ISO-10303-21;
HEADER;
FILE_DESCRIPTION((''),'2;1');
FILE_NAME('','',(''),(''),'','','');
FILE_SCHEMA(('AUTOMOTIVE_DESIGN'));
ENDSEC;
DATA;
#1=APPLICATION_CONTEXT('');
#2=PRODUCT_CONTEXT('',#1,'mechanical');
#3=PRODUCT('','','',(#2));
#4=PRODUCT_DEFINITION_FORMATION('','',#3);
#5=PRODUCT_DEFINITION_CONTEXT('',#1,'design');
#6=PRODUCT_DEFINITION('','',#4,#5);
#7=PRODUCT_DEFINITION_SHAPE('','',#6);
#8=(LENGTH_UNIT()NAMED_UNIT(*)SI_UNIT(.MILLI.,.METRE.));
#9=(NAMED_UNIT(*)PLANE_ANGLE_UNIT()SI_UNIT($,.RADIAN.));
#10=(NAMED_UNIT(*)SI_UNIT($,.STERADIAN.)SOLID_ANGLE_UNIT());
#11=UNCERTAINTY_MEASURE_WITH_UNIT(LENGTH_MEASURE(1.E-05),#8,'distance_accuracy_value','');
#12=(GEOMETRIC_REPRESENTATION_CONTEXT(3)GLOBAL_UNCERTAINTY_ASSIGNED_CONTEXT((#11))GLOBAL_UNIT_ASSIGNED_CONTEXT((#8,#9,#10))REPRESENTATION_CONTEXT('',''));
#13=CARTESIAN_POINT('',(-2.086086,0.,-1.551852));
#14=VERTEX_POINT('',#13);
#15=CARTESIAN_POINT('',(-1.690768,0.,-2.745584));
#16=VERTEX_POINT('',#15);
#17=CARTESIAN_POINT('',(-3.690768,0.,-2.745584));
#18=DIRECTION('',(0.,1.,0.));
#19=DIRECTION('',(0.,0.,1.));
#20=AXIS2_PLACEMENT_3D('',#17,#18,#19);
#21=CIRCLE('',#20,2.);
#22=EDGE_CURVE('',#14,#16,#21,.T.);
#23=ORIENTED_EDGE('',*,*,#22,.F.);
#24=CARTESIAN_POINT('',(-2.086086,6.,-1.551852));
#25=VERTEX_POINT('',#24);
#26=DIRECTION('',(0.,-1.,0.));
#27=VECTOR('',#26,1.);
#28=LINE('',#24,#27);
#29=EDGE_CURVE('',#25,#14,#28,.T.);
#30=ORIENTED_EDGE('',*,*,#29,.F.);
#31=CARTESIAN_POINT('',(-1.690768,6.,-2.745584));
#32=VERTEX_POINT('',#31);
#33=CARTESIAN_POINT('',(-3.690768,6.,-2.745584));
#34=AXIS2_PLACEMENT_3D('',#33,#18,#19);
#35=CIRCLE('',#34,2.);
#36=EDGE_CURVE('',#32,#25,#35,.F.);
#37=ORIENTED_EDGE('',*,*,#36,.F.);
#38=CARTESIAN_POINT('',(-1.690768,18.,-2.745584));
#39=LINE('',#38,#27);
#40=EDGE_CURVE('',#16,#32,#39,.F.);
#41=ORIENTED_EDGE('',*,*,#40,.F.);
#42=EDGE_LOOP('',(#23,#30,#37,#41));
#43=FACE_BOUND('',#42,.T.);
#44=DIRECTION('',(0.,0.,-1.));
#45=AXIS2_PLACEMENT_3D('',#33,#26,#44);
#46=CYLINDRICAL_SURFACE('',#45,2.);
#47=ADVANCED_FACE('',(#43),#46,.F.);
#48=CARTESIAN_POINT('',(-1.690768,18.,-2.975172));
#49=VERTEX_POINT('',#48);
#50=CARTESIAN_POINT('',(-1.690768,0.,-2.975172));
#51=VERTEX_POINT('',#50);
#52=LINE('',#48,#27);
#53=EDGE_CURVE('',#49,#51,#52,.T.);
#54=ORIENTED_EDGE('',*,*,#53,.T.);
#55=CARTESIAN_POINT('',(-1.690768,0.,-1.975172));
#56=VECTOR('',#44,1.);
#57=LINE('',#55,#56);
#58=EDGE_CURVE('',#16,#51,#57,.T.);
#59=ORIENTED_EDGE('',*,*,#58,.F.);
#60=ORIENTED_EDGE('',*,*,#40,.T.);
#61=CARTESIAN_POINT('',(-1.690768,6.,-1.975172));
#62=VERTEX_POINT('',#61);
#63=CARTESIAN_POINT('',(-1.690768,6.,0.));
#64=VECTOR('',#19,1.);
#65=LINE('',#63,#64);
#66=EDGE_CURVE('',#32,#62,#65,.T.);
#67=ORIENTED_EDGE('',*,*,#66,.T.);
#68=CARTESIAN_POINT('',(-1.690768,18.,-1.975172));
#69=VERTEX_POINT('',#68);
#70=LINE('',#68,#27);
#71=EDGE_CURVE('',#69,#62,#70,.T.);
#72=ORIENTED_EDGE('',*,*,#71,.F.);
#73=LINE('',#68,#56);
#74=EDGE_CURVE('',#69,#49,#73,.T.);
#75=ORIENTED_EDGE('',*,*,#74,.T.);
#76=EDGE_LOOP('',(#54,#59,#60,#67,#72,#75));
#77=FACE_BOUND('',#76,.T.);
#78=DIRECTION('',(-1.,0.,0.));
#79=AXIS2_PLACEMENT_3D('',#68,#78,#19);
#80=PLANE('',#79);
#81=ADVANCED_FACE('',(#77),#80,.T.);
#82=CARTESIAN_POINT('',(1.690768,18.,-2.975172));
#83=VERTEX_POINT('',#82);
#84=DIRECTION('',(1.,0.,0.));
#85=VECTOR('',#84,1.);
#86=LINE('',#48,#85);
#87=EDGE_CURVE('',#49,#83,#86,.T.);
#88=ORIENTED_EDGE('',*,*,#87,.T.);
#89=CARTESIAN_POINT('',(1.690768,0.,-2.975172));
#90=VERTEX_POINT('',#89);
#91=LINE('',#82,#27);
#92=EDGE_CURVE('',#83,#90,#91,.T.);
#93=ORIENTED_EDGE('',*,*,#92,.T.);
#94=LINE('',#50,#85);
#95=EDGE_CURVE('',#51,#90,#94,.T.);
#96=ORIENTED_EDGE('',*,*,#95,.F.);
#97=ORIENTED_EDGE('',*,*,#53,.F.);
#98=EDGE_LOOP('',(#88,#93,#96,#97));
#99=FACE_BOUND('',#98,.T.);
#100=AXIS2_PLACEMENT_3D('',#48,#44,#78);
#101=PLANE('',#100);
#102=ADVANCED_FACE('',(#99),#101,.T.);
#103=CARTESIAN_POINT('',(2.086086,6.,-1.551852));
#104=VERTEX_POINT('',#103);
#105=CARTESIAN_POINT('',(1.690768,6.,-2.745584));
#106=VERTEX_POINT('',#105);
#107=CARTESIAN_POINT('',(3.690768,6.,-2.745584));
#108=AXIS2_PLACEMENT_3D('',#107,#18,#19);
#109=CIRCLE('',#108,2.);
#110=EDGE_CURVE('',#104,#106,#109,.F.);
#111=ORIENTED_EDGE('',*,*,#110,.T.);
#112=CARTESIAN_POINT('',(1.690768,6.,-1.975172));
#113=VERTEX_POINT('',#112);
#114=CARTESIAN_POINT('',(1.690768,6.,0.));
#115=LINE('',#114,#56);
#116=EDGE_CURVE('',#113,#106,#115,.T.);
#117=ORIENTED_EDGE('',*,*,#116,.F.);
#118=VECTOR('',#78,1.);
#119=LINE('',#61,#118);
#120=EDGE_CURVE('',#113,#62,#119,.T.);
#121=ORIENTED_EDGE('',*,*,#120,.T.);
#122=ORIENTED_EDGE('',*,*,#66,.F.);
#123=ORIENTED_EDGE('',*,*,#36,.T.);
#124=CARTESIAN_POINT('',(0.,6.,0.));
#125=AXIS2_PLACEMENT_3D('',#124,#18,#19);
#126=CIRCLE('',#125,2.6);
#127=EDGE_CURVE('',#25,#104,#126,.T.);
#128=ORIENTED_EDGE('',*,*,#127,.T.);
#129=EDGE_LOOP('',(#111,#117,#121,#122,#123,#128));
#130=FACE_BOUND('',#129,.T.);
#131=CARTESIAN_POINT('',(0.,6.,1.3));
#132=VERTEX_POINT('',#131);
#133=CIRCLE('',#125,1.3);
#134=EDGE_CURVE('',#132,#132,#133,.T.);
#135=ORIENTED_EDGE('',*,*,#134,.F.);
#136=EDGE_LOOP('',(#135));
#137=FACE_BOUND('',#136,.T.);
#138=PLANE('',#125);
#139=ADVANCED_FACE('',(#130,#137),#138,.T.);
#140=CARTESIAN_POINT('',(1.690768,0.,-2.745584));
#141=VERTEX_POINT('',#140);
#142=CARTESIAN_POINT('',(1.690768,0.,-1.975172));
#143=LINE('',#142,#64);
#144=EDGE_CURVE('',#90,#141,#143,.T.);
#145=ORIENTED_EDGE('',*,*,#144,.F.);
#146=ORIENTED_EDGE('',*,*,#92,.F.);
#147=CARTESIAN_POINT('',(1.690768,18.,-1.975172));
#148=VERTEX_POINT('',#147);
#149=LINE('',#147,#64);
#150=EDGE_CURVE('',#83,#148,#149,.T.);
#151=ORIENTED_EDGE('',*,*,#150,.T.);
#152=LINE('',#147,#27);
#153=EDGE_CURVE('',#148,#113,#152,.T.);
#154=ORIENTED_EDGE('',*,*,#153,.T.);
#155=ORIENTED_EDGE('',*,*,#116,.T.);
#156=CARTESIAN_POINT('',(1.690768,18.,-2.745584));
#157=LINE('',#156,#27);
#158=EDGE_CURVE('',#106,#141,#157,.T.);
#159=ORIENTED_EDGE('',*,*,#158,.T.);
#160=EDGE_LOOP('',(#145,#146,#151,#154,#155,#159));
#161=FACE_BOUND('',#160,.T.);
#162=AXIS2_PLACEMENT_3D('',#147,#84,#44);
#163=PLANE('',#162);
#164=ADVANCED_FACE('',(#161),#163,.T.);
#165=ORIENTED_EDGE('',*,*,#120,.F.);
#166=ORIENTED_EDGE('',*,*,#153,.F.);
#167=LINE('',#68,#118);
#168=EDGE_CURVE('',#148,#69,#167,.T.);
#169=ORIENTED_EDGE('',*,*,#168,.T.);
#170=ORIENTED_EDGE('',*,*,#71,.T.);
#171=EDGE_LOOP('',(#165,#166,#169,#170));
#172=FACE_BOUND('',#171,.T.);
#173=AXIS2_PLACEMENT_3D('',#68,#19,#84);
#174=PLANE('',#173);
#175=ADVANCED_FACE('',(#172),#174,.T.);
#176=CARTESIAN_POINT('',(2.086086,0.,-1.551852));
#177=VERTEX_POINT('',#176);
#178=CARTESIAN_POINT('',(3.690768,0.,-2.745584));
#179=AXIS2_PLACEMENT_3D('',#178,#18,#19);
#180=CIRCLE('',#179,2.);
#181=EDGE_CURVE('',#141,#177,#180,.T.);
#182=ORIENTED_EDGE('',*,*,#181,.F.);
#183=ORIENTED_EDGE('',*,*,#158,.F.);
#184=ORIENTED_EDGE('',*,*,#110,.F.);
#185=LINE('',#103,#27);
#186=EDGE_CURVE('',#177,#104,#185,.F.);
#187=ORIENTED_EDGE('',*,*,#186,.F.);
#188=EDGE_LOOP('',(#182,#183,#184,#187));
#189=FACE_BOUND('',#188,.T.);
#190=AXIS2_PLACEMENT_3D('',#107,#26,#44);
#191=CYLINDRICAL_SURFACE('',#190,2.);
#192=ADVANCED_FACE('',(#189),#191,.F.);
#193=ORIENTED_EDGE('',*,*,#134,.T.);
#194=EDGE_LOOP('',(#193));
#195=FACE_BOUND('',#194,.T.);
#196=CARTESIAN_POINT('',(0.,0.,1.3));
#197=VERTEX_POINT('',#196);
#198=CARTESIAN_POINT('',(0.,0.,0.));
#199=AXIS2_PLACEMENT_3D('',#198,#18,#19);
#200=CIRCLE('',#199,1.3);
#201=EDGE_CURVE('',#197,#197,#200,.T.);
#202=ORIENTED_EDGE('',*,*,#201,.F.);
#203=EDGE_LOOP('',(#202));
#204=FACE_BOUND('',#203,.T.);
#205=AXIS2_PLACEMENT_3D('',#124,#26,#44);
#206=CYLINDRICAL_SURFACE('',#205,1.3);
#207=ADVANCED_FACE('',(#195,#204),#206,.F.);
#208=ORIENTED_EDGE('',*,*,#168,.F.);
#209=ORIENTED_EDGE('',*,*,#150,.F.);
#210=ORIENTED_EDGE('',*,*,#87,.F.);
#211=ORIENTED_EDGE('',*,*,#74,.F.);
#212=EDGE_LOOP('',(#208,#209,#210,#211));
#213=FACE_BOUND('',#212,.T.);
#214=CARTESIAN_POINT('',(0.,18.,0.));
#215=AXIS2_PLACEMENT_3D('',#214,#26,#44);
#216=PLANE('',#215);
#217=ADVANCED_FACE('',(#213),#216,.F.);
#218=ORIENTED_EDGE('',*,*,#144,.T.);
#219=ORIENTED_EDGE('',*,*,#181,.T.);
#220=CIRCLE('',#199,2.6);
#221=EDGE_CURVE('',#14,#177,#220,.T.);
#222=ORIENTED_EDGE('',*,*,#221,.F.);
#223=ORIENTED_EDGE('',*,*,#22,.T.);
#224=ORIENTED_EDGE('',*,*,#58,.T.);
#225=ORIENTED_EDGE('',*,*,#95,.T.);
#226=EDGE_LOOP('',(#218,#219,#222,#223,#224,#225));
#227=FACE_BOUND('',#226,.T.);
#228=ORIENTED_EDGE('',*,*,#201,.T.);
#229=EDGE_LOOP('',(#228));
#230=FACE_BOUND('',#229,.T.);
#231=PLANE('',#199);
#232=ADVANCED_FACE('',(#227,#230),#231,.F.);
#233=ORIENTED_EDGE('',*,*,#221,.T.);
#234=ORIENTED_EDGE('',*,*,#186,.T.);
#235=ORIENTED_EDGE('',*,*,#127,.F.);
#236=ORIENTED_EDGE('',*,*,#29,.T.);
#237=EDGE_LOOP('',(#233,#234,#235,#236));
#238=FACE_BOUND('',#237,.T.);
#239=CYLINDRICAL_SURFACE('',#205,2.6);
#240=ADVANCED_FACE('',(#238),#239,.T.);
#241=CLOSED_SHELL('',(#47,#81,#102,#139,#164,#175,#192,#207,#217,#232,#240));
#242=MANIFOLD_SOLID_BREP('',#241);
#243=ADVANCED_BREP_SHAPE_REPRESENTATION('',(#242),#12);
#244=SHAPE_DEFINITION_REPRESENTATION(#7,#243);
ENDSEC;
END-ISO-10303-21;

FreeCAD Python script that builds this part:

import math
import FreeCAD as App
import Part
import Sketcher
from FreeCAD import Vector


def edges_at(feature, points):
    """Names of the edges that pass closest to the given points."""
    edges = feature.Shape.Edges
    near = lambda p: min(range(len(edges)), key=lambda i: edges[i].distToShape(Part.Vertex(*p))[0])
    return sorted({f"Edge{near(p) + 1}" for p in points})


def add_polygon(sketch, points):
    """Adds a closed chain of lines whose ends are joined by coincident constraints."""
    first, n = sketch.GeometryCount, len(points)
    for a, b in zip(points, points[1:] + points[:1]):
        sketch.addGeometry(Part.LineSegment(App.Vector(*a, 0), App.Vector(*b, 0)), False)
    for i in range(n):
        sketch.addConstraint(Sketcher.Constraint("Coincident", first + i, 2, first + (i + 1) % n, 1))

doc = App.newDocument("Part")
params = doc.addObject("Spreadsheet::Sheet", "Params")
for row, (alias, value) in enumerate([
    ("sketch1_diameter", "2.6 mm"),
    ("sketch1_radius", "2.6 mm"),
    ("pad1_length", "6 mm"),
    ("sketch2_height", "1 mm"),
    ("pad2_length", "18 mm"),
    ("fillet_radius", "2 mm"),
], start=1):
    params.set(f"A{row}", alias)
    params.set(f"B{row}", "=" + value)
    params.setAlias(f"B{row}", alias)

body = doc.addObject("PartDesign::Body", "Body")

# Sketch on XZ plane
sketch1 = body.newObject("Sketcher::SketchObject", "Sketch")
sketch1.AttachmentSupport = (doc.getObject("XZ_Plane"), [""])
sketch1.MapMode = "FlatFace"
sketch1.addGeometry([
    Part.LineSegment(Vector(1.7, -2, 0), Vector(-1.7, -2, 0)),
    Part.ArcOfCircle(Part.Circle(Vector(0, 0, 0), Vector(0, 0, 1), 2.6), math.radians(-49), math.radians(229)),
    Part.Circle(Vector(0, 0, 0), Vector(0, 0, 1), 1.3),
], False)
sketch1.addConstraint([
    Sketcher.Constraint("Coincident", 0, 1, 1, 1),
    Sketcher.Constraint("Coincident", 1, 2, 0, 2),
    Sketcher.Constraint("Horizontal", 0),
    Sketcher.Constraint("Coincident", 1, 3, -1, 1),
    Sketcher.Constraint("Coincident", 2, 3, -1, 1),
    Sketcher.Constraint("Diameter", 2, 2.6),
    Sketcher.Constraint("Radius", 1, 2.6),
    Sketcher.Constraint("DistanceX", 0, 2, 0, 1, 3.381537),
])
sketch1.setExpression("Constraints[5]", "Params.sketch1_diameter")
sketch1.setExpression("Constraints[6]", "Params.sketch1_radius")
pad1 = body.newObject("PartDesign::Pad", "Pad")
pad1.Profile = sketch1
pad1.setExpression("Length", "Params.pad1_length")
pad1.Reversed = True

# Sketch on XZ plane
sketch2 = body.newObject("Sketcher::SketchObject", "Sketch001")
sketch2.AttachmentSupport = (doc.getObject("XZ_Plane"), [""])
sketch2.MapMode = "FlatFace"
add_polygon(sketch2, [(-1.7, -2), (-1.7, -3), (1.7, -3), (1.7, -2)])  # lines 0-3
sketch2.addConstraint([
    Sketcher.Constraint("Vertical", 0),
    Sketcher.Constraint("Horizontal", 1),
    Sketcher.Constraint("Vertical", 2),
    Sketcher.Constraint("Horizontal", 3),
    Sketcher.Constraint("DistanceY", 0, 2, 0, 1, 1.0),
    Sketcher.Constraint("DistanceX", 1, 1, 1, 2, 3.381537),
    Sketcher.Constraint("DistanceX", 0, 2, -1, 1, 1.690768),
    Sketcher.Constraint("DistanceY", 0, 2, -1, 1, 2.975172),
])
sketch2.setExpression("Constraints[8]", "Params.sketch2_height")
pad2 = body.newObject("PartDesign::Pad", "Pad001")
pad2.Profile = sketch2
pad2.setExpression("Length", "Params.pad2_length")
pad2.Reversed = True
doc.recompute()

fillet = body.newObject("PartDesign::Fillet", "Fillet")
fillet.Base = (pad2, edges_at(pad2, [(-1.691, 3, -1.975), (1.691, 3, -1.975)]))
fillet.setExpression("Radius", "Params.fillet_radius")

doc.recompute()
